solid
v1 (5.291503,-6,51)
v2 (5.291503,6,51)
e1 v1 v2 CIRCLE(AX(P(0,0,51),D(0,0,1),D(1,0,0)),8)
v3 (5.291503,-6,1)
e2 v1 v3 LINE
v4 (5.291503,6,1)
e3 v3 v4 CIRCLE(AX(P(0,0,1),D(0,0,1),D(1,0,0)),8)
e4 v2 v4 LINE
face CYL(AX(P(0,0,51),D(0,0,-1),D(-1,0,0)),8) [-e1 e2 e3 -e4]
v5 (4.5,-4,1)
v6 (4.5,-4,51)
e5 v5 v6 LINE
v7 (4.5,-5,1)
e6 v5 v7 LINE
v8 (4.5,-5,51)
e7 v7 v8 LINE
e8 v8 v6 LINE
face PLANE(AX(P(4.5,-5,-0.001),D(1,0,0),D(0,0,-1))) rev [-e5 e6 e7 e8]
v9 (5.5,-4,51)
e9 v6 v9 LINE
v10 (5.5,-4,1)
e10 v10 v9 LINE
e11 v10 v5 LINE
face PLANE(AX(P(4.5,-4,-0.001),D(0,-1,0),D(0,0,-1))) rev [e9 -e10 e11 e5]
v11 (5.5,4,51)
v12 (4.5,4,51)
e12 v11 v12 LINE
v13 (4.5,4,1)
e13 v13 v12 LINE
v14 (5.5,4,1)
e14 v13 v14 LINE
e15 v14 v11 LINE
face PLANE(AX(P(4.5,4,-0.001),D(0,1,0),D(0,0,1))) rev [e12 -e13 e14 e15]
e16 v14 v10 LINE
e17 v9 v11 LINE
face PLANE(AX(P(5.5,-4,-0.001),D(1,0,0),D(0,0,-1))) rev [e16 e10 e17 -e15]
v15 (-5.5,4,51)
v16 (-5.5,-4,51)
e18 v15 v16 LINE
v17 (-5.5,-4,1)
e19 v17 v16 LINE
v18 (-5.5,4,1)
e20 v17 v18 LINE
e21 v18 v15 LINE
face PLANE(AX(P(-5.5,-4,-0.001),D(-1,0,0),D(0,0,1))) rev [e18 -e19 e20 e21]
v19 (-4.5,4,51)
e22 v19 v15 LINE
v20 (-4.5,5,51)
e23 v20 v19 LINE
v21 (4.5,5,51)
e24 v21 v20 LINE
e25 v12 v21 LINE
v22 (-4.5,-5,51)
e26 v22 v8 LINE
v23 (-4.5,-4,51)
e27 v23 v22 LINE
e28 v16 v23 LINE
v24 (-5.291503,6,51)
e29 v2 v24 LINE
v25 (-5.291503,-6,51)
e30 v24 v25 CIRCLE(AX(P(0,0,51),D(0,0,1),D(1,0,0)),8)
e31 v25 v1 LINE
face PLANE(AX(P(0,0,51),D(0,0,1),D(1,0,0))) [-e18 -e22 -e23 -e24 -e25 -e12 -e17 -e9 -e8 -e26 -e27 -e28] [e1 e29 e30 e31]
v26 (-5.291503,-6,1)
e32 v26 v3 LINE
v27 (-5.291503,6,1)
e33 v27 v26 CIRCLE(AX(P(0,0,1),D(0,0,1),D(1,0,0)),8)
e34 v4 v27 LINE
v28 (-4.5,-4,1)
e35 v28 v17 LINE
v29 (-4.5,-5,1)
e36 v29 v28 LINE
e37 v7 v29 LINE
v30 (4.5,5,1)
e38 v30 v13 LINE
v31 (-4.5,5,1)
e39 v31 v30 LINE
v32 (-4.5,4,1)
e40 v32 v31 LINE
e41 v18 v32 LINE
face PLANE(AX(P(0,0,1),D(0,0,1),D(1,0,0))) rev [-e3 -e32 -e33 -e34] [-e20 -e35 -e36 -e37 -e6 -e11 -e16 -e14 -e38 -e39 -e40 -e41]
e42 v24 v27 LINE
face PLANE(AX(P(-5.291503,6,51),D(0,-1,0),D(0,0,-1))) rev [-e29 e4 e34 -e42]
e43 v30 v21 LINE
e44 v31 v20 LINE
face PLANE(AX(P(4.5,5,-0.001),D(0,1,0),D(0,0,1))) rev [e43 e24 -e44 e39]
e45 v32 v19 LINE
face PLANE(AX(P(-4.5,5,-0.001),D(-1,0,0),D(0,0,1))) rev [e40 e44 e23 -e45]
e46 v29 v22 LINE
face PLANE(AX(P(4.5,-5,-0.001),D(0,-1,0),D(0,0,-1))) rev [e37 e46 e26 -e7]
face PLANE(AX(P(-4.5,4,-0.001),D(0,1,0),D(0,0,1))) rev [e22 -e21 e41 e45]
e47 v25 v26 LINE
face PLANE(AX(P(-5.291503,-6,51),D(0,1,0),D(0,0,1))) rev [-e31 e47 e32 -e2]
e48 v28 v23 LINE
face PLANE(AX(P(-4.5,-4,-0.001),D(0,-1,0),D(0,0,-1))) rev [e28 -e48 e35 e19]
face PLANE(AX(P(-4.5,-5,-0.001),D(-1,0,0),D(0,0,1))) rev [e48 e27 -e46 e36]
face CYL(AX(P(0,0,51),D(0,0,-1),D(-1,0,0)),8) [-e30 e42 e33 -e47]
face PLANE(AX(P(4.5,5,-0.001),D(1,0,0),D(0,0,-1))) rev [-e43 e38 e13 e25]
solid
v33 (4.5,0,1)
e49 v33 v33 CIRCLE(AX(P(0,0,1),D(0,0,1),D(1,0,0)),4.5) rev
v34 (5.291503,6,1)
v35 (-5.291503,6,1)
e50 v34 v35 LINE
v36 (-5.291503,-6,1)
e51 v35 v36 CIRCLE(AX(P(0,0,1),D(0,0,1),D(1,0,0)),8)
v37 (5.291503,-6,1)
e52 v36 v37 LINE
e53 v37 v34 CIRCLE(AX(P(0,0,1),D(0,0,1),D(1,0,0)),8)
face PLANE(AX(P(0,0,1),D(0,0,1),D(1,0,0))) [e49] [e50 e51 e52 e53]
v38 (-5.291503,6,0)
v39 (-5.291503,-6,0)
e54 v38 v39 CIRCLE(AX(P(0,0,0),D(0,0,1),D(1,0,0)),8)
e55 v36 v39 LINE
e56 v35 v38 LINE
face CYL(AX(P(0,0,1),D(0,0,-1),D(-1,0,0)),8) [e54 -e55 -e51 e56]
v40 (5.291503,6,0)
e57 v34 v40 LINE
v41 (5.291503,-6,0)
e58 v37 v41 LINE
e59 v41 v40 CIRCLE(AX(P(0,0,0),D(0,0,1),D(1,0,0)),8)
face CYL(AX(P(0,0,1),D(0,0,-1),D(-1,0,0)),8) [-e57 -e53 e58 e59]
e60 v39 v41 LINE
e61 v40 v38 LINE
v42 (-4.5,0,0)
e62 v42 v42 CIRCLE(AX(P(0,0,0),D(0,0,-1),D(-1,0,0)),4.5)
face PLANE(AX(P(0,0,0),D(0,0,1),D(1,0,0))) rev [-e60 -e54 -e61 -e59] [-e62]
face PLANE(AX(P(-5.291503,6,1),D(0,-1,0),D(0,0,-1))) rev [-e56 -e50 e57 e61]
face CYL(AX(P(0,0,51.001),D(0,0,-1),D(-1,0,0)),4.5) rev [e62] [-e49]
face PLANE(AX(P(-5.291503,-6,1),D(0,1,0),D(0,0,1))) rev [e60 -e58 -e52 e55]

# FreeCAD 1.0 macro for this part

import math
import FreeCAD as App
import Part
import Sketcher
Q = App.Units.Quantity


def add_polygon(sketch, points):
    """Adds a closed chain of lines whose ends are joined by coincident constraints."""
    first, n = sketch.GeometryCount, len(points)
    for a, b in zip(points, points[1:] + points[:1]):
        sketch.addGeometry(Part.LineSegment(App.Vector(*a, 0), App.Vector(*b, 0)), False)
    for i in range(n):
        sketch.addConstraint(Sketcher.Constraint("Coincident", first + i, 2, first + (i + 1) % n, 1))

doc = App.newDocument("Part")
body = doc.addObject("PartDesign::Body", "Body")

# Sketch on XY plane
sketch1 = body.newObject("Sketcher::SketchObject", "Sketch")
sketch1.AttachmentSupport = (doc.getObject("XY_Plane"), [""])
sketch1.MapMode = "FlatFace"
sketch1.addGeometry([
    Part.LineSegment(App.Vector(5, 6, 0), App.Vector(-5, 6, 0)),
    Part.ArcOfCircle(Part.Circle(App.Vector(0, 0, 0), App.Vector(0, 0, 1), 8), math.radians(131), math.radians(229)),
    Part.LineSegment(App.Vector(-5, -6, 0), App.Vector(5, -6, 0)),
    Part.ArcOfCircle(Part.Circle(App.Vector(0, 0, 0), App.Vector(0, 0, 1), 8), math.radians(-49), math.radians(49)),
], False)
sketch1.addConstraint([
    Sketcher.Constraint("Coincident", 0, 2, 1, 1),
    Sketcher.Constraint("Coincident", 1, 2, 2, 1),
    Sketcher.Constraint("Coincident", 2, 2, 3, 1),
    Sketcher.Constraint("Coincident", 3, 2, 0, 1),
    Sketcher.Constraint("Horizontal", 0),
    Sketcher.Constraint("Horizontal", 2),
    Sketcher.Constraint("Coincident", 1, 3, -1, 1),
    Sketcher.Constraint("Coincident", 3, 3, -1, 1),
    Sketcher.Constraint("Equal", 1, 3),
    Sketcher.Constraint("Vertical", 0, 2, 1, 2),
    Sketcher.Constraint("Radius", 1, Q("8 mm")),
    Sketcher.Constraint("DistanceY", -1, 1, 0, 2, Q("6 mm")),
])
pad1 = body.newObject("PartDesign::Pad", "Pad")
pad1.Profile = sketch1
pad1.Length = 1

# Sketch on XY plane
sketch2 = body.newObject("Sketcher::SketchObject", "Sketch001")
sketch2.AttachmentSupport = (doc.getObject("XY_Plane"), [""])
sketch2.MapMode = "FlatFace"
sketch2.addGeometry(Part.Circle(App.Vector(0, 0, 0), App.Vector(0, 0, 1), 4.5), False)
sketch2.addConstraint([
    Sketcher.Constraint("Coincident", 0, 3, -1, 1),
    Sketcher.Constraint("Diameter", 0, Q("9 mm")),
])
pocket1 = body.newObject("PartDesign::Pocket", "Pocket")
pocket1.Profile = sketch2
pocket1.Length = 1
pocket1.Reversed = True
body2 = doc.addObject("PartDesign::Body", "Body001")

# Sketch on XY plane
sketch3 = body2.newObject("Sketcher::SketchObject", "Sketch002")
sketch3.AttachmentSupport = (doc.getObject("XY_Plane001"), [""])
sketch3.MapMode = "FlatFace"
sketch3.AttachmentOffset = App.Placement(App.Vector(0, 0, 1), App.Rotation())
sketch3.addGeometry([
    Part.LineSegment(App.Vector(5, 6, 0), App.Vector(-5, 6, 0)),
    Part.ArcOfCircle(Part.Circle(App.Vector(0, 0, 0), App.Vector(0, 0, 1), 8), math.radians(131), math.radians(229)),
    Part.LineSegment(App.Vector(-5, -6, 0), App.Vector(5, -6, 0)),
    Part.ArcOfCircle(Part.Circle(App.Vector(0, 0, 0), App.Vector(0, 0, 1), 8), math.radians(-49), math.radians(49)),
], False)
sketch3.addConstraint([
    Sketcher.Constraint("Coincident", 0, 2, 1, 1),
    Sketcher.Constraint("Coincident", 1, 2, 2, 1),
    Sketcher.Constraint("Coincident", 2, 2, 3, 1),
    Sketcher.Constraint("Coincident", 3, 2, 0, 1),
    Sketcher.Constraint("Horizontal", 0),
    Sketcher.Constraint("Horizontal", 2),
    Sketcher.Constraint("Coincident", 1, 3, -1, 1),
    Sketcher.Constraint("Coincident", 3, 3, -1, 1),
    Sketcher.Constraint("Equal", 1, 3),
    Sketcher.Constraint("Vertical", 0, 2, 1, 2),
    Sketcher.Constraint("Radius", 1, Q("8 mm")),
    Sketcher.Constraint("DistanceY", -1, 1, 0, 2, Q("6 mm")),
])
pad2 = body2.newObject("PartDesign::Pad", "Pad001")
pad2.Profile = sketch3
pad2.Length = 50

# Sketch on XY plane
sketch4 = body2.newObject("Sketcher::SketchObject", "Sketch003")
sketch4.AttachmentSupport = (doc.getObject("XY_Plane001"), [""])
sketch4.MapMode = "FlatFace"
sketch4.AttachmentOffset = App.Placement(App.Vector(0, 0, 51), App.Rotation())
add_polygon(sketch4, [(-4.5, 5), (-4.5, 4), (-5.5, 4), (-5.5, -4), (-4.5, -4), (-4.5, -5), (4.5, -5), (4.5, -4), (5.5, -4), (5.5, 4), (4.5, 4), (4.5, 5)])  # lines 0-11
sketch4.addConstraint([
    Sketcher.Constraint("Vertical", 0),
    Sketcher.Constraint("Horizontal", 1),
    Sketcher.Constraint("Vertical", 2),
    Sketcher.Constraint("Horizontal", 3),
    Sketcher.Constraint("Vertical", 4),
    Sketcher.Constraint("Horizontal", 5),
    Sketcher.Constraint("Vertical", 6),
    Sketcher.Constraint("Horizontal", 7),
    Sketcher.Constraint("Vertical", 8),
    Sketcher.Constraint("Horizontal", 9),
    Sketcher.Constraint("Vertical", 10),
    Sketcher.Constraint("Horizontal", 11),
    Sketcher.Constraint("Symmetric", 0, 2, 6, 2, -1, 1),
    Sketcher.Constraint("Symmetric", 2, 2, 8, 2, -1, 1),
    Sketcher.Constraint("Symmetric", 4, 2, 10, 2, -1, 1),
    Sketcher.Constraint("Symmetric", 3, 2, 6, 2, -2),
    Sketcher.Constraint("Equal", 9, 0),
    Sketcher.Constraint("DistanceX", 1, 2, 1, 1, Q("1 mm")),
    Sketcher.Constraint("DistanceX", 5, 1, 5, 2, Q("9 mm")),
    Sketcher.Constraint("DistanceY", 2, 2, 2, 1, Q("8 mm")),
])
pocket2 = body2.newObject("PartDesign::Pocket", "Pocket001")
pocket2.Profile = sketch4
pocket2.Length = 50

doc.recompute()
